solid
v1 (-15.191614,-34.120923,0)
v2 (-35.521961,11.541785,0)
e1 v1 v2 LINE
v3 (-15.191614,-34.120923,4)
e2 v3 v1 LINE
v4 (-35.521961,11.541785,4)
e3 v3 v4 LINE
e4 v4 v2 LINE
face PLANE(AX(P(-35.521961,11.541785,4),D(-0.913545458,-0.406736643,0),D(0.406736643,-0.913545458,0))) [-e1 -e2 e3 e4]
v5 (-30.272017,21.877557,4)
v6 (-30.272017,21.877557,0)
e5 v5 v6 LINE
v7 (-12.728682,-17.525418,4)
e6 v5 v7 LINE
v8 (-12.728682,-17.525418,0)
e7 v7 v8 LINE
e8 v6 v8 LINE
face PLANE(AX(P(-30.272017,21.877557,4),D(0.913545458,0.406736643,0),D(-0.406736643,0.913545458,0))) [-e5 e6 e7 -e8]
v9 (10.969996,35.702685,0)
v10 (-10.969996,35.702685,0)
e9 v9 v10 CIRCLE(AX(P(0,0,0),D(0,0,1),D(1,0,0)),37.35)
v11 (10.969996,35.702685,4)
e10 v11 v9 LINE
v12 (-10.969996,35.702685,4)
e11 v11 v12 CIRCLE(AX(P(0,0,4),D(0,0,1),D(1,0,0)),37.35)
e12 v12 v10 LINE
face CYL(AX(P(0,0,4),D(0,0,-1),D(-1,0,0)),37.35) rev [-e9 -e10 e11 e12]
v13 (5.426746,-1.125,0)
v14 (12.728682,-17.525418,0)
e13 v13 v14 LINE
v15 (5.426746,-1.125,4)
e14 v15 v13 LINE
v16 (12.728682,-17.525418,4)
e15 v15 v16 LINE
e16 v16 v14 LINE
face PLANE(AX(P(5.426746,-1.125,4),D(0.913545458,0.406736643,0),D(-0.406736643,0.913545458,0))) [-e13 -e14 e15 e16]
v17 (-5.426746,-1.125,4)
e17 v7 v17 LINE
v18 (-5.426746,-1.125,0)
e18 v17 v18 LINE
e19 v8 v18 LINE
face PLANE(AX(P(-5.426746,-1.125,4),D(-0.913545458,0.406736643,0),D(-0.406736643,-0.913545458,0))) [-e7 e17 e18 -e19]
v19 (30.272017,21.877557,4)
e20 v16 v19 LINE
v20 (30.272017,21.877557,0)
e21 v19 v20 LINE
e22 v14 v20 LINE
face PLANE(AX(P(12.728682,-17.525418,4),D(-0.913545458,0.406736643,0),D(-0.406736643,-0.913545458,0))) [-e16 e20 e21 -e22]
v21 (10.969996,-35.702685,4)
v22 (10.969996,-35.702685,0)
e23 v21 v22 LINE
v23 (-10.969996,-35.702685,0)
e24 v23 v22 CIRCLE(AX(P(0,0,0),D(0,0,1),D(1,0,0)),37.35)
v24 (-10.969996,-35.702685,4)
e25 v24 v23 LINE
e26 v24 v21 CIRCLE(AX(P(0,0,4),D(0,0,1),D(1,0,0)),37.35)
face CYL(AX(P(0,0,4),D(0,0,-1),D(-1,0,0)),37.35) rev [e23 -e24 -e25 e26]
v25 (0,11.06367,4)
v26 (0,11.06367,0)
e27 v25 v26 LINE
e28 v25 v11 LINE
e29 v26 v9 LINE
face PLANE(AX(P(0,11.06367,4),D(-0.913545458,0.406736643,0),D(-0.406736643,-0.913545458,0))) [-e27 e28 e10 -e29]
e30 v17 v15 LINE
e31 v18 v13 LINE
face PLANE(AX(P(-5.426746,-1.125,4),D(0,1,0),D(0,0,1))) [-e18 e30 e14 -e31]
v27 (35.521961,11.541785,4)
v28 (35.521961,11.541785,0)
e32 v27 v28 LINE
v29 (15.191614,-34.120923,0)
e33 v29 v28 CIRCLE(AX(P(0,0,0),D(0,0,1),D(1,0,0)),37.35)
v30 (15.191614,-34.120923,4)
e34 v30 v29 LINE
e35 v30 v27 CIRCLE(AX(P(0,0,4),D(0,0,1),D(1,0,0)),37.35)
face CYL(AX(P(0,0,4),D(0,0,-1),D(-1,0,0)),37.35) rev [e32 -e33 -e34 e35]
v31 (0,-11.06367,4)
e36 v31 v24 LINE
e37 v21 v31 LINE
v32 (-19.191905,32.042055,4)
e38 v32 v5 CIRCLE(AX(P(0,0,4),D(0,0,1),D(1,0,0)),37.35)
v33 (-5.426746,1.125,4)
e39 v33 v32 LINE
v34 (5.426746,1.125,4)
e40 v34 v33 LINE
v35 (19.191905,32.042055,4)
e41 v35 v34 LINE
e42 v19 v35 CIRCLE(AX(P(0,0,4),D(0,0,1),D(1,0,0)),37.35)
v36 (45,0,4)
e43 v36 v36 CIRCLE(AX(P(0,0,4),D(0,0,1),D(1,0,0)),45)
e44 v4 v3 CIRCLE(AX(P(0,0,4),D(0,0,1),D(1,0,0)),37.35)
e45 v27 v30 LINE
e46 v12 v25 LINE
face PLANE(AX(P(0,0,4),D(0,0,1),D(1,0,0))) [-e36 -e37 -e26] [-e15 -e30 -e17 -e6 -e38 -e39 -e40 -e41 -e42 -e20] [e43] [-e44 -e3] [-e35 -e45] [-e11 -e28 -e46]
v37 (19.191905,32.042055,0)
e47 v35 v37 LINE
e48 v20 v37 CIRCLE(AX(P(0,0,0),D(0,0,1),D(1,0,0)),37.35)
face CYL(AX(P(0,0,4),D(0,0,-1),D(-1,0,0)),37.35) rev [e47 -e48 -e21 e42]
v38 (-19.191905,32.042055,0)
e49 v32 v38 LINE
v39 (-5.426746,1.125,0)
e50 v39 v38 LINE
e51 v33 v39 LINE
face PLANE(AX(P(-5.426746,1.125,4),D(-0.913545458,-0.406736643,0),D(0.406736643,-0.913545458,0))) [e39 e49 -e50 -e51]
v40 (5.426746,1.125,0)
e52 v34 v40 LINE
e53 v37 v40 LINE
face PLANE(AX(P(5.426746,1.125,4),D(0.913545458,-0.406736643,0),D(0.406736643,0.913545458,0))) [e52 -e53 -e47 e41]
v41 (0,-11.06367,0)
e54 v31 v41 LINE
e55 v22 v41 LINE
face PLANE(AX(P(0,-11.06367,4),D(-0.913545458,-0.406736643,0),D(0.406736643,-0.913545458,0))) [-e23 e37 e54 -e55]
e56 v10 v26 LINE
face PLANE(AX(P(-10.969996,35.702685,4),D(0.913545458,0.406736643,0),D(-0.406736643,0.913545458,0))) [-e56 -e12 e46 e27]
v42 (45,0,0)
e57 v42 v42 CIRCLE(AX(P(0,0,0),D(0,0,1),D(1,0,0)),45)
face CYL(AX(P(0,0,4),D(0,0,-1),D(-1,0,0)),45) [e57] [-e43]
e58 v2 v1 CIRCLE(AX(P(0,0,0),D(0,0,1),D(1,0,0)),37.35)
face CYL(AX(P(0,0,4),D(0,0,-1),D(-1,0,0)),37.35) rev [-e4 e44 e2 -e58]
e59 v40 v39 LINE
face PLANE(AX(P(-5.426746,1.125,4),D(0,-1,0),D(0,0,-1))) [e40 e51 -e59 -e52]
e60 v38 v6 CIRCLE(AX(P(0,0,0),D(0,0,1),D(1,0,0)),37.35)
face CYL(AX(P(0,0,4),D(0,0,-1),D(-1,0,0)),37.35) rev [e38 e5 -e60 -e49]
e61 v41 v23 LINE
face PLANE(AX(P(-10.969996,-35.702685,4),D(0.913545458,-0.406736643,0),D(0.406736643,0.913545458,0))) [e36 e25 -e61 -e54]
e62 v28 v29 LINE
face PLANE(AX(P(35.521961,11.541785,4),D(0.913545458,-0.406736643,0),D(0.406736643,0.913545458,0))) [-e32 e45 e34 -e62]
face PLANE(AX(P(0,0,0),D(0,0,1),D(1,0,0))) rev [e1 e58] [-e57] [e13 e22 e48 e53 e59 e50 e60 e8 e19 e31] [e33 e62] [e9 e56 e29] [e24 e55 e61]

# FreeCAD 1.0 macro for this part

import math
import FreeCAD as App
import Part
import Sketcher

V = App.Vector
Q = App.Units.Quantity

doc = App.newDocument("Part")
body = doc.addObject("PartDesign::Body", "Body")

# Sketch on XY plane
sketch1 = body.newObject("Sketcher::SketchObject", "Sketch")
sketch1.AttachmentSupport = (doc.getObject("XY_Plane"), [""])
sketch1.MapMode = "FlatFace"
sketch1.addGeometry([
    Part.Circle(V(0, 0, 0), V(0, 0, 1), 45),  # 0
    Part.ArcOfCircle(Part.Circle(V(0, 0, 0), V(0, 0, 1), 37), math.radians(-107), math.radians(-73)),  # 1
    Part.LineSegment(V(-11, -36, 0), V(0, -11, 0)),  # 2
    Part.LineSegment(V(0, -11, 0), V(11, -36, 0)),  # 3
    Part.ArcOfCircle(Part.Circle(V(0, 0, 0), V(0, 0, 1), 37), math.radians(162), math.radians(246)),  # 4
    Part.LineSegment(V(-36, 12, 0), V(-15, -34, 0)),  # 5
    Part.LineSegment(V(15, -34, 0), V(36, 12, 0)),  # 6
    Part.ArcOfCircle(Part.Circle(V(0, 0, 0), V(0, 0, 1), 37), math.radians(-66), math.radians(18)),  # 7
    Part.LineSegment(V(-13, -18, 0), V(-30, 22, 0)),  # 8
    Part.ArcOfCircle(Part.Circle(V(0, 0, 0), V(0, 0, 1), 37), math.radians(121), math.radians(144)),  # 9
    Part.LineSegment(V(-19, 32, 0), V(-5, 1, 0)),  # 10
    Part.LineSegment(V(-5, 1, 0), V(5, 1, 0)),  # 11
    Part.LineSegment(V(5, 1, 0), V(19, 32, 0)),  # 12
    Part.ArcOfCircle(Part.Circle(V(0, 0, 0), V(0, 0, 1), 37), math.radians(36), math.radians(59)),  # 13
    Part.LineSegment(V(30, 22, 0), V(13, -18, 0)),  # 14
    Part.LineSegment(V(13, -18, 0), V(5, -1, 0)),  # 15
    Part.LineSegment(V(5, -1, 0), V(-5, -1, 0)),  # 16
    Part.LineSegment(V(-5, -1, 0), V(-13, -18, 0)),  # 17
    Part.LineSegment(V(0, 11, 0), V(-11, 36, 0)),  # 18
    Part.ArcOfCircle(Part.Circle(V(0, 0, 0), V(0, 0, 1), 37), math.radians(73), math.radians(107)),  # 19
    Part.LineSegment(V(11, 36, 0), V(0, 11, 0)),  # 20
], False)
sketch1.addConstraint([
    Sketcher.Constraint("Coincident", 1, 1, 2, 1),
    Sketcher.Constraint("Coincident", 2, 2, 3, 1),
    Sketcher.Constraint("Coincident", 3, 2, 1, 2),
    Sketcher.Constraint("Coincident", 4, 1, 5, 1),
    Sketcher.Constraint("Coincident", 5, 2, 4, 2),
    Sketcher.Constraint("Coincident", 6, 1, 7, 1),
    Sketcher.Constraint("Coincident", 7, 2, 6, 2),
    Sketcher.Constraint("Coincident", 8, 2, 9, 2),
    Sketcher.Constraint("Coincident", 9, 1, 10, 1),
    Sketcher.Constraint("Coincident", 10, 2, 11, 1),
    Sketcher.Constraint("Coincident", 11, 2, 12, 1),
    Sketcher.Constraint("Coincident", 12, 2, 13, 2),
    Sketcher.Constraint("Coincident", 13, 1, 14, 1),
    Sketcher.Constraint("Coincident", 14, 2, 15, 1),
    Sketcher.Constraint("Coincident", 15, 2, 16, 1),
    Sketcher.Constraint("Coincident", 16, 2, 17, 1),
    Sketcher.Constraint("Coincident", 17, 2, 8, 1),
    Sketcher.Constraint("Coincident", 18, 2, 19, 2),
    Sketcher.Constraint("Coincident", 19, 1, 20, 1),
    Sketcher.Constraint("Coincident", 20, 2, 18, 1),
    Sketcher.Constraint("Horizontal", 11),
    Sketcher.Constraint("Horizontal", 16),
    Sketcher.Constraint("Coincident", 0, 3, -1, 1),
    Sketcher.Constraint("Coincident", 1, 3, -1, 1),
    Sketcher.Constraint("Coincident", 4, 3, -1, 1),
    Sketcher.Constraint("Coincident", 7, 3, -1, 1),
    Sketcher.Constraint("Coincident", 9, 3, -1, 1),
    Sketcher.Constraint("Coincident", 13, 3, -1, 1),
    Sketcher.Constraint("Coincident", 19, 3, -1, 1),
    Sketcher.Constraint("Equal", 1, 4),
    Sketcher.Constraint("Equal", 4, 7),
    Sketcher.Constraint("Equal", 7, 9),
    Sketcher.Constraint("Equal", 9, 13),
    Sketcher.Constraint("Equal", 13, 19),
    Sketcher.Constraint("Symmetric", 10, 2, 15, 2, -1, 1),
    Sketcher.Constraint("Symmetric", 2, 2, 20, 2, -1, 1),
    Sketcher.Constraint("Symmetric", 14, 2, 17, 2, -2),
    Sketcher.Constraint("PointOnObject", 2, 2, -2),
    Sketcher.Constraint("Parallel", 3, 5),
    Sketcher.Constraint("Parallel", 2, 6),
    Sketcher.Constraint("Parallel", 5, 8),
    Sketcher.Constraint("Parallel", 8, 10),
    Sketcher.Constraint("Parallel", 6, 12),
    Sketcher.Constraint("Parallel", 12, 14),
    Sketcher.Constraint("Parallel", 10, 15),
    Sketcher.Constraint("Parallel", 14, 17),
    Sketcher.Constraint("Parallel", 15, 18),
    Sketcher.Constraint("Parallel", 17, 20),
    Sketcher.Constraint("Horizontal", 1, 1, 3, 2),
    Sketcher.Constraint("Horizontal", 5, 2, 6, 1),
    Sketcher.Constraint("Horizontal", 9, 1, 12, 2),
    Sketcher.Constraint("Diameter", 0, 90.0),
    Sketcher.Constraint("Angle", 2, Q("66 deg")),
    Sketcher.Constraint("Radius", 1, 37.35),
    Sketcher.Constraint("DistanceY", 15, 2, 11, 2, 2.25),
    Sketcher.Constraint("DistanceX", 11, 1, 11, 2, 10.853491),
    Sketcher.Constraint("DistanceX", 18, 2, 12, 2, 30.161901),
    Sketcher.Constraint("DistanceY", 4, 1, 18, 2, 24.1609),
    Sketcher.Constraint("DistanceX", -1, 1, 14, 2, 12.728682),
])
pad1 = body.newObject("PartDesign::Pad", "Pad")
pad1.Profile = sketch1
pad1.Length = 4

doc.recompute()
